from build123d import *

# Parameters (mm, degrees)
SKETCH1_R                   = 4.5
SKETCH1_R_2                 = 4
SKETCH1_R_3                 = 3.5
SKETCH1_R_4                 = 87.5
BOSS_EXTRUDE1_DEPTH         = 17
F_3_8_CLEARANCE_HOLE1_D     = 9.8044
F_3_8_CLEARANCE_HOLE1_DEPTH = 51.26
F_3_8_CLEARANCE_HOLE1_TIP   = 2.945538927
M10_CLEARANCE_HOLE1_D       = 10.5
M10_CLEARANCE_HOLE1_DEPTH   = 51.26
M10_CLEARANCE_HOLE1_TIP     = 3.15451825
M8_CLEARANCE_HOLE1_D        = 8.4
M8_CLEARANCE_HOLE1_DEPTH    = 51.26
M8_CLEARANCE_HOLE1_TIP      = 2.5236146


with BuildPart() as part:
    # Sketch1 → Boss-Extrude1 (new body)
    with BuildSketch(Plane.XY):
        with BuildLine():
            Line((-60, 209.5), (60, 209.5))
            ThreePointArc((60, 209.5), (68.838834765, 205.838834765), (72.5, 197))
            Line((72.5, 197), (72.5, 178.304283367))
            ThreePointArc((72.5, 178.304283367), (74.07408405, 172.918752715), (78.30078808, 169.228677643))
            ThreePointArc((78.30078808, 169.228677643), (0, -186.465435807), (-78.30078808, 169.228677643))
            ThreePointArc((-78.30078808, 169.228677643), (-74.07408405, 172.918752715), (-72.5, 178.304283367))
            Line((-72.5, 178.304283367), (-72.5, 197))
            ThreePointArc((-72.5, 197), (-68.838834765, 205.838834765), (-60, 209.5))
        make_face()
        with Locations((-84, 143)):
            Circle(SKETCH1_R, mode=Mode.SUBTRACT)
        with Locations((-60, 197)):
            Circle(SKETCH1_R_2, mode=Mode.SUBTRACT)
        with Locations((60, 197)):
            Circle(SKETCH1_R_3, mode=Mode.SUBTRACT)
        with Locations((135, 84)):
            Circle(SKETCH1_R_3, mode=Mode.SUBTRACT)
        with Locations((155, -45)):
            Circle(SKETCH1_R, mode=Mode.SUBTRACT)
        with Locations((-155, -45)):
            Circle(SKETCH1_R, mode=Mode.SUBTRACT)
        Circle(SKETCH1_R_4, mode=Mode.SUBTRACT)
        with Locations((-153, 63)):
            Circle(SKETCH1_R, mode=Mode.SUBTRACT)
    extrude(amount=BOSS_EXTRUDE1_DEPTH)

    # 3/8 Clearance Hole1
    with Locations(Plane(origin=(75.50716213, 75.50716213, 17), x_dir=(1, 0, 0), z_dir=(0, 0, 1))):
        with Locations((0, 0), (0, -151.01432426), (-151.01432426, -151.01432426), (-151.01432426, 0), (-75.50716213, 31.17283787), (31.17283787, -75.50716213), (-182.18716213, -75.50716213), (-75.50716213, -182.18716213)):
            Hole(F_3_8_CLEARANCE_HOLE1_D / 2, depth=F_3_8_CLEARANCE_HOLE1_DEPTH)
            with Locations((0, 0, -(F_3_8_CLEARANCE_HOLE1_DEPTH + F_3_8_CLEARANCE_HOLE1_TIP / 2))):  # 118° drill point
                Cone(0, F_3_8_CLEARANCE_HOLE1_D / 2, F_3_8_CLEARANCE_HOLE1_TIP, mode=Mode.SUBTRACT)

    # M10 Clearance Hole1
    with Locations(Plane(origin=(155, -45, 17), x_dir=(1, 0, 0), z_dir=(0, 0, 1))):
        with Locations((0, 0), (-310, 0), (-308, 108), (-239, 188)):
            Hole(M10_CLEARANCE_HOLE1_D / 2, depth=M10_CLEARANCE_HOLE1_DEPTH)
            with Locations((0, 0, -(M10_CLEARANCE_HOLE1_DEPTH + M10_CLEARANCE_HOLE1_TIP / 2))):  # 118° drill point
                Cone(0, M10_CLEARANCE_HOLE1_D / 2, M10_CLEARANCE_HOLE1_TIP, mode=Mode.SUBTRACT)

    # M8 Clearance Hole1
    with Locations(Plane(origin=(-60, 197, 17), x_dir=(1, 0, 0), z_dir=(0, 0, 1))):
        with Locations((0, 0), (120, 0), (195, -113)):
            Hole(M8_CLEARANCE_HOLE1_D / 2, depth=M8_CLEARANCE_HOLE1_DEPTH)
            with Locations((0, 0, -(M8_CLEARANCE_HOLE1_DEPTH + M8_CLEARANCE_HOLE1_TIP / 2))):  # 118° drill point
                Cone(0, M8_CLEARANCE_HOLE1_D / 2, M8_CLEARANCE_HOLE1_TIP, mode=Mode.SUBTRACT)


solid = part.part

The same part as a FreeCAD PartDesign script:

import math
import FreeCAD as App
import Part
import Sketcher

V = App.Vector

doc = App.newDocument("Part")
params = doc.addObject("Spreadsheet::Sheet", "Params")
for row, (alias, value) in enumerate([
    ("sketch1_diameter", "9 mm"),
    ("sketch1_diameter2", "175 mm"),
    ("sketch1_diameter3", "7 mm"),
    ("sketch1_diameter4", "8 mm"),
    ("sketch1_radius", "10 mm"),
    ("pad1_length", "17 mm"),
    ("hole_diameter", "9.8044 mm"),
    ("hole_depth", "51.26 mm"),
    ("sketch3_diameter", "10.5 mm"),
    ("hole2_diameter", "10.5 mm"),
    ("hole2_depth", "51.26 mm"),
    ("sketch4_diameter", "8.4 mm"),
    ("hole3_diameter", "8.4 mm"),
    ("hole3_depth", "51.26 mm"),
], start=1):
    params.set(f"A{row}", alias)
    params.set(f"B{row}", "=" + value)
    params.setAlias(f"B{row}", alias)

body = doc.addObject("PartDesign::Body", "Body")

sketch1 = body.newObject("Sketcher::SketchObject", "Sketch")
sketch1.AttachmentSupport = (doc.getObject("XY_Plane"), [""])
sketch1.MapMode = "FlatFace"
sketch1.addGeometry([
    Part.LineSegment(V(60, 209.5, 0), V(-60, 209.5, 0)),
    Part.ArcOfCircle(Part.Circle(V(-60, 197, 0), V(0, 0, 1), 12.5), math.radians(90), math.radians(180)),
    Part.LineSegment(V(-72.5, 197, 0), V(-72.5, 178.304283, 0)),
    Part.ArcOfCircle(Part.Circle(V(-82.5, 178.304283, 0), V(0, 0, 1), 10), math.radians(-65.170388), math.radians(0)),
    Part.ArcOfCircle(Part.Circle(V(0, 0, 0), V(0, 0, 1), 186.465436), math.radians(114.829612), math.radians(425.170388)),
    Part.ArcOfCircle(Part.Circle(V(82.5, 178.304283, 0), V(0, 0, 1), 10), math.radians(180), math.radians(245.170388)),
    Part.LineSegment(V(72.5, 178.304283, 0), V(72.5, 197, 0)),
    Part.ArcOfCircle(Part.Circle(V(60, 197, 0), V(0, 0, 1), 12.5), math.radians(0), math.radians(90)),
    Part.Circle(V(155, -45, 0), V(0, 0, 1), 4.5),
    Part.Circle(V(-155, -45, 0), V(0, 0, 1), 4.5),
    Part.Circle(V(0, 0, 0), V(0, 0, 1), 87.5),
    Part.Circle(V(135, 84, 0), V(0, 0, 1), 3.5),
    Part.Circle(V(60, 197, 0), V(0, 0, 1), 3.5),
    Part.Circle(V(-153, 63, 0), V(0, 0, 1), 4.5),
    Part.Circle(V(-60, 197, 0), V(0, 0, 1), 4),
    Part.Circle(V(-84, 143, 0), V(0, 0, 1), 4.5),
], False)
sketch1.addConstraint([
    Sketcher.Constraint("Tangent", 0, 2, 1, 1),
    Sketcher.Constraint("Tangent", 1, 2, 2, 1),
    Sketcher.Constraint("Tangent", 2, 2, 3, 2),
    Sketcher.Constraint("Tangent", 3, 1, 4, 1),
    Sketcher.Constraint("Tangent", 4, 2, 5, 2),
    Sketcher.Constraint("Tangent", 5, 1, 6, 1),
    Sketcher.Constraint("Tangent", 6, 2, 7, 1),
    Sketcher.Constraint("Tangent", 7, 2, 0, 1),
    Sketcher.Constraint("Horizontal", 0),
    Sketcher.Constraint("Vertical", 2),
    Sketcher.Constraint("Vertical", 6),
    Sketcher.Constraint("Coincident", 4, 3, -1, 1),
    Sketcher.Constraint("Coincident", 10, 3, -1, 1),
    Sketcher.Constraint("Coincident", 12, 3, 7, 3),
    Sketcher.Constraint("Coincident", 14, 3, 1, 3),
    Sketcher.Constraint("Equal", 3, 5),
    Sketcher.Constraint("Equal", 1, 7),
    Sketcher.Constraint("Equal", 8, 9),
    Sketcher.Constraint("Equal", 11, 12),
    Sketcher.Constraint("Equal", 9, 13),
    Sketcher.Constraint("Equal", 13, 15),
    Sketcher.Constraint("Symmetric", 8, 3, 9, 3, -2),
    Sketcher.Constraint("Horizontal", 3, 3, 5, 3),
    Sketcher.Constraint("Diameter", 8, 9.0),
    Sketcher.Constraint("Diameter", 10, 175.0),
    Sketcher.Constraint("Diameter", 11, 7.0),
    Sketcher.Constraint("Diameter", 14, 8.0),
    Sketcher.Constraint("Radius", 3, 10.0),
    Sketcher.Constraint("Radius", 1, 12.5),
    Sketcher.Constraint("DistanceX", 0, 2, 0, 1, 120.0),
    Sketcher.Constraint("DistanceY", -1, 1, 1, 3, 197.0),
    Sketcher.Constraint("DistanceX", -1, 1, 8, 3, 155.0),
    Sketcher.Constraint("DistanceY", 8, 3, -1, 1, 45.0),
    Sketcher.Constraint("DistanceX", -1, 1, 11, 3, 135.0),
    Sketcher.Constraint("DistanceY", -1, 1, 11, 3, 84.0),
    Sketcher.Constraint("DistanceX", 13, 3, -1, 1, 153.0),
    Sketcher.Constraint("DistanceY", -1, 1, 13, 3, 63.0),
    Sketcher.Constraint("DistanceX", 15, 3, -1, 1, 84.0),
    Sketcher.Constraint("DistanceY", -1, 1, 15, 3, 143.0),
    Sketcher.Constraint("Radius", 4, 186.465436),
])
sketch1.setExpression("Constraints[23]", "Params.sketch1_diameter")
sketch1.setExpression("Constraints[24]", "Params.sketch1_diameter2")
sketch1.setExpression("Constraints[25]", "Params.sketch1_diameter3")
sketch1.setExpression("Constraints[26]", "Params.sketch1_diameter4")
sketch1.setExpression("Constraints[27]", "Params.sketch1_radius")
pad1 = body.newObject("PartDesign::Pad", "Pad")
pad1.Profile = sketch1
pad1.setExpression("Length", "Params.pad1_length")

sketch2 = body.newObject("Sketcher::SketchObject", "Sketch001")
sketch2.AttachmentSupport = (doc.getObject("XY_Plane"), [""])
sketch2.MapMode = "FlatFace"
sketch2.AttachmentOffset = App.Placement(V(0, 0, 17), App.Rotation())
sketch2.addGeometry([
    Part.Circle(V(75.507162, 75.507162, 0), V(0, 0, 1), 4.9022),
    Part.Circle(V(75.507162, -75.507162, 0), V(0, 0, 1), 4.9022),
    Part.Circle(V(-75.507162, -75.507162, 0), V(0, 0, 1), 4.9022),
    Part.Circle(V(-75.507162, 75.507162, 0), V(0, 0, 1), 4.9022),
    Part.Circle(V(0, 106.68, 0), V(0, 0, 1), 4.9022),
    Part.Circle(V(106.68, 0, 0), V(0, 0, 1), 4.9022),
    Part.Circle(V(-106.68, 0, 0), V(0, 0, 1), 4.9022),
    Part.Circle(V(0, -106.68, 0), V(0, 0, 1), 4.9022),
], False)
sketch2.addConstraint([
    Sketcher.Constraint("Equal", 0, 1),
    Sketcher.Constraint("Equal", 1, 2),
    Sketcher.Constraint("Equal", 2, 3),
    Sketcher.Constraint("Equal", 3, 4),
    Sketcher.Constraint("Equal", 4, 5),
    Sketcher.Constraint("Equal", 5, 6),
    Sketcher.Constraint("Equal", 6, 7),
    Sketcher.Constraint("Symmetric", 0, 3, 2, 3, -1, 1),
    Sketcher.Constraint("Symmetric", 1, 3, 3, 3, -1, 1),
    Sketcher.Constraint("Symmetric", 5, 3, 6, 3, -1, 1),
    Sketcher.Constraint("Symmetric", 4, 3, 7, 3, -1, 1),
    Sketcher.Constraint("Symmetric", 1, 3, 2, 3, -2),
    Sketcher.Constraint("PointOnObject", 4, 3, -2),
    Sketcher.Constraint("PointOnObject", 5, 3, -1),
    Sketcher.Constraint("Diameter", 0, 9.8044),
    Sketcher.Constraint("DistanceY", -1, 1, 4, 3, 106.68),
    Sketcher.Constraint("DistanceX", -1, 1, 5, 3, 106.68),
    Sketcher.Constraint("DistanceX", -1, 1, 0, 3, 75.507162),
    Sketcher.Constraint("DistanceY", -1, 1, 0, 3, 75.507162),
])
doc.recompute()
hole = body.newObject("PartDesign::Hole", "Hole")
hole.Profile = sketch2
hole.ThreadType = "None"
hole.setExpression("Diameter", "Params.hole_diameter")
hole.DepthType = "Dimension"
hole.setExpression("Depth", "Params.hole_depth")
hole.DrillPoint = "Angled"
hole.DrillPointAngle = 118

sketch3 = body.newObject("Sketcher::SketchObject", "Sketch002")
sketch3.AttachmentSupport = (doc.getObject("XY_Plane"), [""])
sketch3.MapMode = "FlatFace"
sketch3.AttachmentOffset = App.Placement(V(0, 0, 17), App.Rotation())
sketch3.addGeometry([
    Part.Circle(V(155, -45, 0), V(0, 0, 1), 5.25),
    Part.Circle(V(-155, -45, 0), V(0, 0, 1), 5.25),
    Part.Circle(V(-153, 63, 0), V(0, 0, 1), 5.25),
    Part.Circle(V(-84, 143, 0), V(0, 0, 1), 5.25),
], False)
sketch3.addConstraint([
    Sketcher.Constraint("Equal", 0, 1),
    Sketcher.Constraint("Equal", 1, 2),
    Sketcher.Constraint("Equal", 2, 3),
    Sketcher.Constraint("Symmetric", 0, 3, 1, 3, -2),
    Sketcher.Constraint("Diameter", 0, 10.5),
    Sketcher.Constraint("DistanceX", -1, 1, 0, 3, 155.0),
    Sketcher.Constraint("DistanceY", 0, 3, -1, 1, 45.0),
    Sketcher.Constraint("DistanceX", 2, 3, -1, 1, 153.0),
    Sketcher.Constraint("DistanceY", -1, 1, 2, 3, 63.0),
    Sketcher.Constraint("DistanceX", 3, 3, -1, 1, 84.0),
    Sketcher.Constraint("DistanceY", -1, 1, 3, 3, 143.0),
])
sketch3.setExpression("Constraints[4]", "Params.sketch3_diameter")
doc.recompute()
hole2 = body.newObject("PartDesign::Hole", "Hole001")
hole2.Profile = sketch3
hole2.ThreadType = "None"
hole2.setExpression("Diameter", "Params.hole2_diameter")
hole2.DepthType = "Dimension"
hole2.setExpression("Depth", "Params.hole2_depth")
hole2.DrillPoint = "Angled"
hole2.DrillPointAngle = 118

sketch4 = body.newObject("Sketcher::SketchObject", "Sketch003")
sketch4.AttachmentSupport = (doc.getObject("XY_Plane"), [""])
sketch4.MapMode = "FlatFace"
sketch4.AttachmentOffset = App.Placement(V(0, 0, 17), App.Rotation())
sketch4.addGeometry([
    Part.Circle(V(-60, 197, 0), V(0, 0, 1), 4.2),
    Part.Circle(V(60, 197, 0), V(0, 0, 1), 4.2),
    Part.Circle(V(135, 84, 0), V(0, 0, 1), 4.2),
], False)
sketch4.addConstraint([
    Sketcher.Constraint("Equal", 0, 1),
    Sketcher.Constraint("Equal", 1, 2),
    Sketcher.Constraint("Symmetric", 0, 3, 1, 3, -2),
    Sketcher.Constraint("Diameter", 0, 8.4),
    Sketcher.Constraint("DistanceX", 0, 3, -1, 1, 60.0),
    Sketcher.Constraint("DistanceY", -1, 1, 0, 3, 197.0),
    Sketcher.Constraint("DistanceX", -1, 1, 2, 3, 135.0),
    Sketcher.Constraint("DistanceY", -1, 1, 2, 3, 84.0),
])
sketch4.setExpression("Constraints[3]", "Params.sketch4_diameter")
doc.recompute()
hole3 = body.newObject("PartDesign::Hole", "Hole002")
hole3.Profile = sketch4
hole3.ThreadType = "None"
hole3.setExpression("Diameter", "Params.hole3_diameter")
hole3.DepthType = "Dimension"
hole3.setExpression("Depth", "Params.hole3_depth")
hole3.DrillPoint = "Angled"
hole3.DrillPointAngle = 118

doc.recompute()
